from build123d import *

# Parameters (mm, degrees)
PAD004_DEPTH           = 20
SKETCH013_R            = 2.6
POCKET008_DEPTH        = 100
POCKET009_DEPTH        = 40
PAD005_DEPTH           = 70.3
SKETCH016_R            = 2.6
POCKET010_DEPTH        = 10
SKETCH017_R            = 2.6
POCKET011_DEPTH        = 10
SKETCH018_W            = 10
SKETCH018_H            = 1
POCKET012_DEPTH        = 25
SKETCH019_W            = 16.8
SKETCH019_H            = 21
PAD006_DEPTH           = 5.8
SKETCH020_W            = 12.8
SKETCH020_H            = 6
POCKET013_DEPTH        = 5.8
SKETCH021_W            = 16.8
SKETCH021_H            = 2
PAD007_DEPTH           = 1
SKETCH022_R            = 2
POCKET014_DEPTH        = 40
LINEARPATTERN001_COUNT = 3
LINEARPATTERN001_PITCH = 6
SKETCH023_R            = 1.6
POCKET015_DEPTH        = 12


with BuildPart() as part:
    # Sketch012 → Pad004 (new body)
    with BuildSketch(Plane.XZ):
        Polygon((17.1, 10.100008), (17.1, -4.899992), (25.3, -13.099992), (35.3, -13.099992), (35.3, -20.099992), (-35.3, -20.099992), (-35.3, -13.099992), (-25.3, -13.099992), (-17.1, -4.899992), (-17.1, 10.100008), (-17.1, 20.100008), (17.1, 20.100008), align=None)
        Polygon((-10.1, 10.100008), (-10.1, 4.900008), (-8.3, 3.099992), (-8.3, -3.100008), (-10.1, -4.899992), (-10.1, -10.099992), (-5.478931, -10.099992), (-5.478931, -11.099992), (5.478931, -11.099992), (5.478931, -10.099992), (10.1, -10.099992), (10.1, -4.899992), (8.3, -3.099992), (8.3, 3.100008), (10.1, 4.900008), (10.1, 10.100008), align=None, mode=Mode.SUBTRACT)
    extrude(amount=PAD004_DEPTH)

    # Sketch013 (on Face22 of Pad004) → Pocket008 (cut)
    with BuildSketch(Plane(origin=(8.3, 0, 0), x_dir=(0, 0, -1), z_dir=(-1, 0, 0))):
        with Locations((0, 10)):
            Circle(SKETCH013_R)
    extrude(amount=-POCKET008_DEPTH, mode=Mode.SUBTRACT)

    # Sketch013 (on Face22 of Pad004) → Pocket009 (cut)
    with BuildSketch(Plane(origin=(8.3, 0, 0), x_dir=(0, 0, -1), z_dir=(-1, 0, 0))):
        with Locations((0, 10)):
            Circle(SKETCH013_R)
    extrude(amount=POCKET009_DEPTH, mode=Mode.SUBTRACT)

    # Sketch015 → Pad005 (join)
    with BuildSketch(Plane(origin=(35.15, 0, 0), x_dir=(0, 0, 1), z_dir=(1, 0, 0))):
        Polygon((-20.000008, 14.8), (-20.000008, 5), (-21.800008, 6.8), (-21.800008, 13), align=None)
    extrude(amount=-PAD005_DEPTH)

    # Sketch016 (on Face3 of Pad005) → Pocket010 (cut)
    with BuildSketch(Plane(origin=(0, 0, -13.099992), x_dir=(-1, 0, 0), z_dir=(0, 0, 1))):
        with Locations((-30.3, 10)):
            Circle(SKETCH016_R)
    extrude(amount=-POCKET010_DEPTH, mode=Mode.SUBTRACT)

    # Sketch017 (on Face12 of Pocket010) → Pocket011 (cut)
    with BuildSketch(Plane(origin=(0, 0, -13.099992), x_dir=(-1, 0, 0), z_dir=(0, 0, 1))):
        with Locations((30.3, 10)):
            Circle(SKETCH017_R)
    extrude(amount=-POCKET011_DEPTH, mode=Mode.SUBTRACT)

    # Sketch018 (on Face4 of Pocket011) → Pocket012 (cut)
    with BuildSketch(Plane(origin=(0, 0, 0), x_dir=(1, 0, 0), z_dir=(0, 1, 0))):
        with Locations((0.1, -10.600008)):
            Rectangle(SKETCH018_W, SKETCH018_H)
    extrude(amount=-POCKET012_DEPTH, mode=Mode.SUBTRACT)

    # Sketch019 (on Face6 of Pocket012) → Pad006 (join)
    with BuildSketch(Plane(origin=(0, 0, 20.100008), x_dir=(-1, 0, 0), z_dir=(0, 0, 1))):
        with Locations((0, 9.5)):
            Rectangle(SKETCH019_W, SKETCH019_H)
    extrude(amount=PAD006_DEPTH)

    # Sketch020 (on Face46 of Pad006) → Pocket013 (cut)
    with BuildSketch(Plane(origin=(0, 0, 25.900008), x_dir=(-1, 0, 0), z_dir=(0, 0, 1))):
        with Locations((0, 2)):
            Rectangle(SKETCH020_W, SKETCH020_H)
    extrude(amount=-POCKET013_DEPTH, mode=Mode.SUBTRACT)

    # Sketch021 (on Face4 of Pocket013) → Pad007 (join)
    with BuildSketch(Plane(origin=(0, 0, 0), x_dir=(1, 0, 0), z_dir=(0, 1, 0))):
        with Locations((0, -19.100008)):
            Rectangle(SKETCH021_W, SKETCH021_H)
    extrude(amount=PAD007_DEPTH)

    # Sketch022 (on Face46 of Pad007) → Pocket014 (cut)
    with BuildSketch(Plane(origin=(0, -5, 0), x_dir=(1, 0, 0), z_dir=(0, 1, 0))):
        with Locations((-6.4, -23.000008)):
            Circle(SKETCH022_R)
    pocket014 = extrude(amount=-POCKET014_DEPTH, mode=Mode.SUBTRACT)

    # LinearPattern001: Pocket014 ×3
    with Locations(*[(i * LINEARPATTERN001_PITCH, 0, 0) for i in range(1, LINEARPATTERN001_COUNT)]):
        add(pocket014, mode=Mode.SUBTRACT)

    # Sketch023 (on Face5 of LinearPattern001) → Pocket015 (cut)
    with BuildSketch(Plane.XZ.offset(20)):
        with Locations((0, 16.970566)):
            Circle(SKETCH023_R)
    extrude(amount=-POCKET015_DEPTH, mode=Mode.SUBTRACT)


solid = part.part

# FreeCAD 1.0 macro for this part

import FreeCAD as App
import Part
import Sketcher

V = App.Vector
Q = App.Units.Quantity

doc = App.newDocument("Part")
body = doc.addObject("PartDesign::Body", "Body")

# Sketch on XZ plane
sketch1 = body.newObject("Sketcher::SketchObject", "Sketch")
sketch1.AttachmentSupport = (doc.getObject("XZ_Plane"), [""])
sketch1.MapMode = "FlatFace"
sketch1.addGeometry([
    Part.LineSegment(V(17.1, -4.899992, 0), V(17.1, 20.100008, 0)),  # 0
    Part.LineSegment(V(17.1, 20.100008, 0), V(-17.1, 20.100008, 0)),  # 1
    Part.LineSegment(V(-17.1, 20.100008, 0), V(-17.1, -4.899992, 0)),  # 2
    Part.LineSegment(V(-17.1, -4.899992, 0), V(-25.3, -13.099992, 0)),  # 3
    Part.LineSegment(V(-25.3, -13.099992, 0), V(-35.3, -13.099992, 0)),  # 4
    Part.LineSegment(V(-35.3, -13.099992, 0), V(-35.3, -20.099992, 0)),  # 5
    Part.LineSegment(V(-35.3, -20.099992, 0), V(35.3, -20.099992, 0)),  # 6
    Part.LineSegment(V(35.3, -20.099992, 0), V(35.3, -13.099992, 0)),  # 7
    Part.LineSegment(V(35.3, -13.099992, 0), V(25.3, -13.099992, 0)),  # 8
    Part.LineSegment(V(25.3, -13.099992, 0), V(17.1, -4.899992, 0)),  # 9
    Part.LineSegment(V(-10.1, 10.100008, 0), V(10.1, 10.100008, 0)),  # 10
    Part.LineSegment(V(10.1, 10.100008, 0), V(10.1, 4.900008, 0)),  # 11
    Part.LineSegment(V(10.1, 4.900008, 0), V(8.3, 3.100008, 0)),  # 12
    Part.LineSegment(V(8.3, 3.100008, 0), V(8.3, -3.099992, 0)),  # 13
    Part.LineSegment(V(8.3, -3.099992, 0), V(10.1, -4.899992, 0)),  # 14
    Part.LineSegment(V(10.1, -4.899992, 0), V(10.1, -10.099992, 0)),  # 15
    Part.LineSegment(V(10.1, -10.099992, 0), V(5.478931, -10.099992, 0)),  # 16
    Part.LineSegment(V(5.478931, -10.099992, 0), V(5.478931, -11.099992, 0)),  # 17
    Part.LineSegment(V(5.478931, -11.099992, 0), V(-5.478931, -11.099992, 0)),  # 18
    Part.LineSegment(V(-5.478931, -11.099992, 0), V(-5.478931, -10.099992, 0)),  # 19
    Part.LineSegment(V(-5.478931, -10.099992, 0), V(-10.1, -10.099992, 0)),  # 20
    Part.LineSegment(V(-10.1, -10.099992, 0), V(-10.1, -4.899992, 0)),  # 21
    Part.LineSegment(V(-10.1, -4.899992, 0), V(-8.3, -3.100008, 0)),  # 22
    Part.LineSegment(V(-8.3, -3.100008, 0), V(-8.3, 3.099992, 0)),  # 23
    Part.LineSegment(V(-8.3, 3.099992, 0), V(-10.1, 4.900008, 0)),  # 24
    Part.LineSegment(V(-10.1, 4.900008, 0), V(-10.1, 10.100008, 0)),  # 25
], False)
sketch1.addConstraint([
    Sketcher.Constraint("Coincident", 0, 2, 1, 1),
    Sketcher.Constraint("Coincident", 1, 2, 2, 1),
    Sketcher.Constraint("Coincident", 2, 2, 3, 1),
    Sketcher.Constraint("Coincident", 3, 2, 4, 1),
    Sketcher.Constraint("Coincident", 4, 2, 5, 1),
    Sketcher.Constraint("Coincident", 5, 2, 6, 1),
    Sketcher.Constraint("Coincident", 6, 2, 7, 1),
    Sketcher.Constraint("Coincident", 7, 2, 8, 1),
    Sketcher.Constraint("Coincident", 8, 2, 9, 1),
    Sketcher.Constraint("Coincident", 9, 2, 0, 1),
    Sketcher.Constraint("Coincident", 10, 2, 11, 1),
    Sketcher.Constraint("Coincident", 11, 2, 12, 1),
    Sketcher.Constraint("Coincident", 12, 2, 13, 1),
    Sketcher.Constraint("Coincident", 13, 2, 14, 1),
    Sketcher.Constraint("Coincident", 14, 2, 15, 1),
    Sketcher.Constraint("Coincident", 15, 2, 16, 1),
    Sketcher.Constraint("Coincident", 16, 2, 17, 1),
    Sketcher.Constraint("Coincident", 17, 2, 18, 1),
    Sketcher.Constraint("Coincident", 18, 2, 19, 1),
    Sketcher.Constraint("Coincident", 19, 2, 20, 1),
    Sketcher.Constraint("Coincident", 20, 2, 21, 1),
    Sketcher.Constraint("Coincident", 21, 2, 22, 1),
    Sketcher.Constraint("Coincident", 22, 2, 23, 1),
    Sketcher.Constraint("Coincident", 23, 2, 24, 1),
    Sketcher.Constraint("Coincident", 24, 2, 25, 1),
    Sketcher.Constraint("Coincident", 25, 2, 10, 1),
    Sketcher.Constraint("Vertical", 0),
    Sketcher.Constraint("Horizontal", 1),
    Sketcher.Constraint("Vertical", 2),
    Sketcher.Constraint("Horizontal", 4),
    Sketcher.Constraint("Vertical", 5),
    Sketcher.Constraint("Horizontal", 6),
    Sketcher.Constraint("Vertical", 7),
    Sketcher.Constraint("Horizontal", 8),
    Sketcher.Constraint("Horizontal", 10),
    Sketcher.Constraint("Vertical", 11),
    Sketcher.Constraint("Vertical", 13),
    Sketcher.Constraint("Vertical", 15),
    Sketcher.Constraint("Horizontal", 16),
    Sketcher.Constraint("Vertical", 17),
    Sketcher.Constraint("Horizontal", 18),
    Sketcher.Constraint("Vertical", 19),
    Sketcher.Constraint("Horizontal", 20),
    Sketcher.Constraint("Vertical", 21),
    Sketcher.Constraint("Vertical", 23),
    Sketcher.Constraint("Vertical", 25),
    Sketcher.Constraint("Symmetric", 12, 2, 22, 2, -1, 1),
    Sketcher.Constraint("Symmetric", 4, 2, 7, 2, -2),
    Sketcher.Constraint("Symmetric", 2, 2, 9, 2, -2),
    Sketcher.Constraint("Symmetric", 16, 2, 19, 2, -2),
    Sketcher.Constraint("Symmetric", 14, 2, 21, 2, -2),
    Sketcher.Constraint("Symmetric", 11, 2, 24, 2, -2),
    Sketcher.Constraint("Perpendicular", 3, 9),
    Sketcher.Constraint("Perpendicular", 9, 12),
    Sketcher.Constraint("Perpendicular", 12, 14),
    Sketcher.Constraint("Perpendicular", 22, 24),
    Sketcher.Constraint("Horizontal", 9, 2, 14, 2),
    Sketcher.Constraint("Vertical", 11, 2, 14, 2),
    Sketcher.Constraint("Equal", 4, 8),
    Sketcher.Constraint("Equal", 11, 15),
    Sketcher.Constraint("DistanceX", 4, 2, 4, 1, Q("10 mm")),
    Sketcher.Constraint("DistanceY", 0, 1, 0, 2, Q("25 mm")),
    Sketcher.Constraint("DistanceY", 5, 2, 5, 1, Q("7 mm")),
    Sketcher.Constraint("DistanceY", 17, 2, 17, 1, Q("1 mm")),
    Sketcher.Constraint("DistanceX", 1, 2, 1, 1, Q("34.2 mm")),
    Sketcher.Constraint("DistanceX", 6, 1, 6, 2, Q("70.6 mm")),
    Sketcher.Constraint("DistanceX", 10, 1, 10, 2, Q("20.2 mm")),
    Sketcher.Constraint("DistanceY", 11, 2, 11, 1, Q("5.2 mm")),
    Sketcher.Constraint("DistanceY", 13, 2, 13, 1, Q("6.2 mm")),
    Sketcher.Constraint("DistanceY", 10, 2, 0, 2, Q("10 mm")),
    Sketcher.Constraint("DistanceX", 16, 2, 16, 1, Q("4.621069 mm")),
    Sketcher.Constraint("DistanceY", -1, 1, 10, 2, Q("10.100008 mm")),
])
pad1 = body.newObject("PartDesign::Pad", "Pad")
pad1.Profile = sketch1
pad1.Length = 20

# Sketch on YZ plane
sketch2 = body.newObject("Sketcher::SketchObject", "Sketch001")
sketch2.AttachmentSupport = (doc.getObject("YZ_Plane"), [""])
sketch2.MapMode = "FlatFace"
sketch2.AttachmentOffset = App.Placement(V(0, 0, 8.3), App.Rotation())
sketch2.addGeometry(Part.Circle(V(-10, 0, 0), V(0, 0, 1), 2.6), False)
sketch2.addConstraint([
    Sketcher.Constraint("PointOnObject", 0, 3, -1),
    Sketcher.Constraint("Diameter", 0, Q("5.2 mm")),
    Sketcher.Constraint("DistanceX", 0, 3, -1, 1, Q("10 mm")),
])
pocket1 = body.newObject("PartDesign::Pocket", "Pocket")
pocket1.Profile = sketch2
pocket1.Length = 100
pocket1.Reversed = True

# Sketch on YZ plane
sketch3 = body.newObject("Sketcher::SketchObject", "Sketch002")
sketch3.AttachmentSupport = (doc.getObject("YZ_Plane"), [""])
sketch3.MapMode = "FlatFace"
sketch3.AttachmentOffset = App.Placement(V(0, 0, 8.3), App.Rotation())
sketch3.addGeometry(Part.Circle(V(-10, 0, 0), V(0, 0, 1), 2.6), False)
sketch3.addConstraint([
    Sketcher.Constraint("PointOnObject", 0, 3, -1),
    Sketcher.Constraint("Diameter", 0, Q("5.2 mm")),
    Sketcher.Constraint("DistanceX", 0, 3, -1, 1, Q("10 mm")),
])
pocket2 = body.newObject("PartDesign::Pocket", "Pocket001")
pocket2.Profile = sketch3
pocket2.Length = 40

# Sketch on YZ plane
sketch4 = body.newObject("Sketcher::SketchObject", "Sketch003")
sketch4.AttachmentSupport = (doc.getObject("YZ_Plane"), [""])
sketch4.MapMode = "FlatFace"
sketch4.AttachmentOffset = App.Placement(V(0, 0, 35.15), App.Rotation())
sketch4.addGeometry([
    Part.LineSegment(V(-5, -20.000008, 0), V(-14.8, -20.000008, 0)),
    Part.LineSegment(V(-14.8, -20.000008, 0), V(-13, -21.800008, 0)),
    Part.LineSegment(V(-13, -21.800008, 0), V(-6.8, -21.800008, 0)),
    Part.LineSegment(V(-6.8, -21.800008, 0), V(-5, -20.000008, 0)),
], False)
sketch4.addConstraint([
    Sketcher.Constraint("Coincident", 0, 2, 1, 1),
    Sketcher.Constraint("Coincident", 1, 2, 2, 1),
    Sketcher.Constraint("Coincident", 2, 2, 3, 1),
    Sketcher.Constraint("Coincident", 3, 2, 0, 1),
    Sketcher.Constraint("Horizontal", 0),
    Sketcher.Constraint("Horizontal", 2),
    Sketcher.Constraint("Perpendicular", 1, 3),
    Sketcher.Constraint("Equal", 1, 3),
    Sketcher.Constraint("DistanceX", 0, 2, 0, 1, Q("9.8 mm")),
    Sketcher.Constraint("DistanceX", 2, 1, 2, 2, Q("6.2 mm")),
    Sketcher.Constraint("DistanceX", 1, 2, -1, 1, Q("13 mm")),
    Sketcher.Constraint("DistanceY", 0, 2, -1, 1, Q("20.000008 mm")),
])
pad2 = body.newObject("PartDesign::Pad", "Pad001")
pad2.Profile = sketch4
pad2.Length = 70.3
pad2.Reversed = True

# Sketch on XY plane
sketch5 = body.newObject("Sketcher::SketchObject", "Sketch004")
sketch5.AttachmentSupport = (doc.getObject("XY_Plane"), [""])
sketch5.MapMode = "FlatFace"
sketch5.AttachmentOffset = App.Placement(V(0, 0, -13.099992), App.Rotation())
sketch5.addGeometry(Part.Circle(V(30.3, -10, 0), V(0, 0, 1), 2.6), False)
sketch5.addConstraint([
    Sketcher.Constraint("Diameter", 0, Q("5.2 mm")),
    Sketcher.Constraint("DistanceY", 0, 3, -1, 1, Q("10 mm")),
    Sketcher.Constraint("DistanceX", -1, 1, 0, 3, Q("30.3 mm")),
])
pocket3 = body.newObject("PartDesign::Pocket", "Pocket002")
pocket3.Profile = sketch5
pocket3.Length = 10

# Sketch on XY plane
sketch6 = body.newObject("Sketcher::SketchObject", "Sketch005")
sketch6.AttachmentSupport = (doc.getObject("XY_Plane"), [""])
sketch6.MapMode = "FlatFace"
sketch6.AttachmentOffset = App.Placement(V(0, 0, -13.099992), App.Rotation())
sketch6.addGeometry(Part.Circle(V(-30.3, -10, 0), V(0, 0, 1), 2.6), False)
sketch6.addConstraint([
    Sketcher.Constraint("Diameter", 0, Q("5.2 mm")),
    Sketcher.Constraint("DistanceY", 0, 3, -1, 1, Q("10 mm")),
    Sketcher.Constraint("DistanceX", 0, 3, -1, 1, Q("30.3 mm")),
])
pocket4 = body.newObject("PartDesign::Pocket", "Pocket003")
pocket4.Profile = sketch6
pocket4.Length = 10

# Sketch on XZ plane
sketch7 = body.newObject("Sketcher::SketchObject", "Sketch006")
sketch7.AttachmentSupport = (doc.getObject("XZ_Plane"), [""])
sketch7.MapMode = "FlatFace"
sketch7.addGeometry([
    Part.LineSegment(V(-4.9, 10.100008, 0), V(-4.9, 11.100008, 0)),
    Part.LineSegment(V(-4.9, 11.100008, 0), V(5.1, 11.100008, 0)),
    Part.LineSegment(V(5.1, 11.100008, 0), V(5.1, 10.100008, 0)),
    Part.LineSegment(V(5.1, 10.100008, 0), V(-4.9, 10.100008, 0)),
], False)
sketch7.addConstraint([
    Sketcher.Constraint("Coincident", 0, 2, 1, 1),
    Sketcher.Constraint("Coincident", 1, 2, 2, 1),
    Sketcher.Constraint("Coincident", 2, 2, 3, 1),
    Sketcher.Constraint("Coincident", 3, 2, 0, 1),
    Sketcher.Constraint("Vertical", 0),
    Sketcher.Constraint("Horizontal", 1),
    Sketcher.Constraint("Vertical", 2),
    Sketcher.Constraint("Horizontal", 3),
    Sketcher.Constraint("DistanceX", 1, 1, 1, 2, Q("10 mm")),
    Sketcher.Constraint("DistanceY", 0, 1, 0, 2, Q("1 mm")),
    Sketcher.Constraint("DistanceX", 0, 2, -1, 1, Q("4.9 mm")),
    Sketcher.Constraint("DistanceY", -1, 1, 0, 2, Q("11.100008 mm")),
])
pocket5 = body.newObject("PartDesign::Pocket", "Pocket004")
pocket5.Profile = sketch7
pocket5.Length = 25
pocket5.Reversed = True

# Sketch on XY plane
sketch8 = body.newObject("Sketcher::SketchObject", "Sketch007")
sketch8.AttachmentSupport = (doc.getObject("XY_Plane"), [""])
sketch8.MapMode = "FlatFace"
sketch8.AttachmentOffset = App.Placement(V(0, 0, 20.100008), App.Rotation())
sketch8.addGeometry([
    Part.LineSegment(V(8.4, -20, 0), V(8.4, 1, 0)),
    Part.LineSegment(V(8.4, 1, 0), V(-8.4, 1, 0)),
    Part.LineSegment(V(-8.4, 1, 0), V(-8.4, -20, 0)),
    Part.LineSegment(V(-8.4, -20, 0), V(8.4, -20, 0)),
], False)
sketch8.addConstraint([
    Sketcher.Constraint("Coincident", 0, 2, 1, 1),
    Sketcher.Constraint("Coincident", 1, 2, 2, 1),
    Sketcher.Constraint("Coincident", 2, 2, 3, 1),
    Sketcher.Constraint("Coincident", 3, 2, 0, 1),
    Sketcher.Constraint("Vertical", 0),
    Sketcher.Constraint("Horizontal", 1),
    Sketcher.Constraint("Vertical", 2),
    Sketcher.Constraint("Horizontal", 3),
    Sketcher.Constraint("DistanceY", 0, 1, 0, 2, Q("21 mm")),
    Sketcher.Constraint("DistanceX", 1, 2, 1, 1, Q("16.8 mm")),
    Sketcher.Constraint("DistanceY", -1, 1, 0, 2, Q("1 mm")),
    Sketcher.Constraint("DistanceX", -1, 1, 0, 2, Q("8.4 mm")),
])
pad3 = body.newObject("PartDesign::Pad", "Pad002")
pad3.Profile = sketch8
pad3.Length = 5.8

# Sketch on XY plane
sketch9 = body.newObject("Sketcher::SketchObject", "Sketch008")
sketch9.AttachmentSupport = (doc.getObject("XY_Plane"), [""])
sketch9.MapMode = "FlatFace"
sketch9.AttachmentOffset = App.Placement(V(0, 0, 25.900008), App.Rotation())
sketch9.addGeometry([
    Part.LineSegment(V(6.4, -5, 0), V(6.4, 1, 0)),
    Part.LineSegment(V(6.4, 1, 0), V(-6.4, 1, 0)),
    Part.LineSegment(V(-6.4, 1, 0), V(-6.4, -5, 0)),
    Part.LineSegment(V(-6.4, -5, 0), V(6.4, -5, 0)),
], False)
sketch9.addConstraint([
    Sketcher.Constraint("Coincident", 0, 2, 1, 1),
    Sketcher.Constraint("Coincident", 1, 2, 2, 1),
    Sketcher.Constraint("Coincident", 2, 2, 3, 1),
    Sketcher.Constraint("Coincident", 3, 2, 0, 1),
    Sketcher.Constraint("Vertical", 0),
    Sketcher.Constraint("Horizontal", 1),
    Sketcher.Constraint("Vertical", 2),
    Sketcher.Constraint("Horizontal", 3),
    Sketcher.Constraint("DistanceY", 0, 1, 0, 2, Q("6 mm")),
    Sketcher.Constraint("DistanceX", 1, 2, 1, 1, Q("12.8 mm")),
    Sketcher.Constraint("DistanceY", -1, 1, 0, 2, Q("1 mm")),
    Sketcher.Constraint("DistanceX", -1, 1, 0, 2, Q("6.4 mm")),
])
pocket6 = body.newObject("PartDesign::Pocket", "Pocket005")
pocket6.Profile = sketch9
pocket6.Length = 5.8

# Sketch on XZ plane
sketch10 = body.newObject("Sketcher::SketchObject", "Sketch009")
sketch10.AttachmentSupport = (doc.getObject("XZ_Plane"), [""])
sketch10.MapMode = "FlatFace"
sketch10.addGeometry([
    Part.LineSegment(V(-8.4, 18.100008, 0), V(-8.4, 20.100008, 0)),
    Part.LineSegment(V(-8.4, 20.100008, 0), V(8.4, 20.100008, 0)),
    Part.LineSegment(V(8.4, 20.100008, 0), V(8.4, 18.100008, 0)),
    Part.LineSegment(V(8.4, 18.100008, 0), V(-8.4, 18.100008, 0)),
], False)
sketch10.addConstraint([
    Sketcher.Constraint("Coincident", 0, 2, 1, 1),
    Sketcher.Constraint("Coincident", 1, 2, 2, 1),
    Sketcher.Constraint("Coincident", 2, 2, 3, 1),
    Sketcher.Constraint("Coincident", 3, 2, 0, 1),
    Sketcher.Constraint("Vertical", 0),
    Sketcher.Constraint("Horizontal", 1),
    Sketcher.Constraint("Vertical", 2),
    Sketcher.Constraint("Horizontal", 3),
    Sketcher.Constraint("DistanceY", 0, 1, 0, 2, Q("2 mm")),
    Sketcher.Constraint("DistanceX", 1, 1, 1, 2, Q("16.8 mm")),
    Sketcher.Constraint("DistanceX", 0, 2, -1, 1, Q("8.4 mm")),
    Sketcher.Constraint("DistanceY", -1, 1, 0, 2, Q("20.100008 mm")),
])
pad4 = body.newObject("PartDesign::Pad", "Pad003")
pad4.Profile = sketch10
pad4.Length = 1
pad4.Reversed = True

# Sketch on XZ plane
sketch11 = body.newObject("Sketcher::SketchObject", "Sketch010")
sketch11.AttachmentSupport = (doc.getObject("XZ_Plane"), [""])
sketch11.MapMode = "FlatFace"
sketch11.AttachmentOffset = App.Placement(V(0, 0, 5), App.Rotation())
sketch11.addGeometry(Part.Circle(V(-6.4, 23.000008, 0), V(0, 0, 1), 2), False)
sketch11.addConstraint([
    Sketcher.Constraint("Diameter", 0, Q("4 mm")),
    Sketcher.Constraint("DistanceX", 0, 3, -1, 1, Q("6.4 mm")),
    Sketcher.Constraint("DistanceY", -1, 1, 0, 3, Q("23.000008 mm")),
])
pocket7 = body.newObject("PartDesign::Pocket", "Pocket006")
pocket7.Profile = sketch11
pocket7.Length = 40
pocket7.Reversed = True
doc.recompute()

linearpattern = body.newObject("PartDesign::LinearPattern", "LinearPattern")
linearpattern.Originals = [pocket7]
linearpattern.Direction = (doc.getObject("X_Axis"), [""])
linearpattern.Mode = "offset"
linearpattern.Offset = 6
linearpattern.Occurrences = 3
body.Tip = linearpattern

# Sketch on XZ plane
sketch12 = body.newObject("Sketcher::SketchObject", "Sketch011")
sketch12.AttachmentSupport = (doc.getObject("XZ_Plane"), [""])
sketch12.MapMode = "FlatFace"
sketch12.AttachmentOffset = App.Placement(V(0, 0, 20), App.Rotation())
sketch12.addGeometry(Part.Circle(V(0, 16.970566, 0), V(0, 0, 1), 1.6), False)
sketch12.addConstraint([
    Sketcher.Constraint("PointOnObject", 0, 3, -2),
    Sketcher.Constraint("Diameter", 0, Q("3.2 mm")),
    Sketcher.Constraint("DistanceY", -1, 1, 0, 3, Q("16.970566 mm")),
])
pocket8 = body.newObject("PartDesign::Pocket", "Pocket007")
pocket8.Profile = sketch12
pocket8.Length = 12

doc.recompute()
